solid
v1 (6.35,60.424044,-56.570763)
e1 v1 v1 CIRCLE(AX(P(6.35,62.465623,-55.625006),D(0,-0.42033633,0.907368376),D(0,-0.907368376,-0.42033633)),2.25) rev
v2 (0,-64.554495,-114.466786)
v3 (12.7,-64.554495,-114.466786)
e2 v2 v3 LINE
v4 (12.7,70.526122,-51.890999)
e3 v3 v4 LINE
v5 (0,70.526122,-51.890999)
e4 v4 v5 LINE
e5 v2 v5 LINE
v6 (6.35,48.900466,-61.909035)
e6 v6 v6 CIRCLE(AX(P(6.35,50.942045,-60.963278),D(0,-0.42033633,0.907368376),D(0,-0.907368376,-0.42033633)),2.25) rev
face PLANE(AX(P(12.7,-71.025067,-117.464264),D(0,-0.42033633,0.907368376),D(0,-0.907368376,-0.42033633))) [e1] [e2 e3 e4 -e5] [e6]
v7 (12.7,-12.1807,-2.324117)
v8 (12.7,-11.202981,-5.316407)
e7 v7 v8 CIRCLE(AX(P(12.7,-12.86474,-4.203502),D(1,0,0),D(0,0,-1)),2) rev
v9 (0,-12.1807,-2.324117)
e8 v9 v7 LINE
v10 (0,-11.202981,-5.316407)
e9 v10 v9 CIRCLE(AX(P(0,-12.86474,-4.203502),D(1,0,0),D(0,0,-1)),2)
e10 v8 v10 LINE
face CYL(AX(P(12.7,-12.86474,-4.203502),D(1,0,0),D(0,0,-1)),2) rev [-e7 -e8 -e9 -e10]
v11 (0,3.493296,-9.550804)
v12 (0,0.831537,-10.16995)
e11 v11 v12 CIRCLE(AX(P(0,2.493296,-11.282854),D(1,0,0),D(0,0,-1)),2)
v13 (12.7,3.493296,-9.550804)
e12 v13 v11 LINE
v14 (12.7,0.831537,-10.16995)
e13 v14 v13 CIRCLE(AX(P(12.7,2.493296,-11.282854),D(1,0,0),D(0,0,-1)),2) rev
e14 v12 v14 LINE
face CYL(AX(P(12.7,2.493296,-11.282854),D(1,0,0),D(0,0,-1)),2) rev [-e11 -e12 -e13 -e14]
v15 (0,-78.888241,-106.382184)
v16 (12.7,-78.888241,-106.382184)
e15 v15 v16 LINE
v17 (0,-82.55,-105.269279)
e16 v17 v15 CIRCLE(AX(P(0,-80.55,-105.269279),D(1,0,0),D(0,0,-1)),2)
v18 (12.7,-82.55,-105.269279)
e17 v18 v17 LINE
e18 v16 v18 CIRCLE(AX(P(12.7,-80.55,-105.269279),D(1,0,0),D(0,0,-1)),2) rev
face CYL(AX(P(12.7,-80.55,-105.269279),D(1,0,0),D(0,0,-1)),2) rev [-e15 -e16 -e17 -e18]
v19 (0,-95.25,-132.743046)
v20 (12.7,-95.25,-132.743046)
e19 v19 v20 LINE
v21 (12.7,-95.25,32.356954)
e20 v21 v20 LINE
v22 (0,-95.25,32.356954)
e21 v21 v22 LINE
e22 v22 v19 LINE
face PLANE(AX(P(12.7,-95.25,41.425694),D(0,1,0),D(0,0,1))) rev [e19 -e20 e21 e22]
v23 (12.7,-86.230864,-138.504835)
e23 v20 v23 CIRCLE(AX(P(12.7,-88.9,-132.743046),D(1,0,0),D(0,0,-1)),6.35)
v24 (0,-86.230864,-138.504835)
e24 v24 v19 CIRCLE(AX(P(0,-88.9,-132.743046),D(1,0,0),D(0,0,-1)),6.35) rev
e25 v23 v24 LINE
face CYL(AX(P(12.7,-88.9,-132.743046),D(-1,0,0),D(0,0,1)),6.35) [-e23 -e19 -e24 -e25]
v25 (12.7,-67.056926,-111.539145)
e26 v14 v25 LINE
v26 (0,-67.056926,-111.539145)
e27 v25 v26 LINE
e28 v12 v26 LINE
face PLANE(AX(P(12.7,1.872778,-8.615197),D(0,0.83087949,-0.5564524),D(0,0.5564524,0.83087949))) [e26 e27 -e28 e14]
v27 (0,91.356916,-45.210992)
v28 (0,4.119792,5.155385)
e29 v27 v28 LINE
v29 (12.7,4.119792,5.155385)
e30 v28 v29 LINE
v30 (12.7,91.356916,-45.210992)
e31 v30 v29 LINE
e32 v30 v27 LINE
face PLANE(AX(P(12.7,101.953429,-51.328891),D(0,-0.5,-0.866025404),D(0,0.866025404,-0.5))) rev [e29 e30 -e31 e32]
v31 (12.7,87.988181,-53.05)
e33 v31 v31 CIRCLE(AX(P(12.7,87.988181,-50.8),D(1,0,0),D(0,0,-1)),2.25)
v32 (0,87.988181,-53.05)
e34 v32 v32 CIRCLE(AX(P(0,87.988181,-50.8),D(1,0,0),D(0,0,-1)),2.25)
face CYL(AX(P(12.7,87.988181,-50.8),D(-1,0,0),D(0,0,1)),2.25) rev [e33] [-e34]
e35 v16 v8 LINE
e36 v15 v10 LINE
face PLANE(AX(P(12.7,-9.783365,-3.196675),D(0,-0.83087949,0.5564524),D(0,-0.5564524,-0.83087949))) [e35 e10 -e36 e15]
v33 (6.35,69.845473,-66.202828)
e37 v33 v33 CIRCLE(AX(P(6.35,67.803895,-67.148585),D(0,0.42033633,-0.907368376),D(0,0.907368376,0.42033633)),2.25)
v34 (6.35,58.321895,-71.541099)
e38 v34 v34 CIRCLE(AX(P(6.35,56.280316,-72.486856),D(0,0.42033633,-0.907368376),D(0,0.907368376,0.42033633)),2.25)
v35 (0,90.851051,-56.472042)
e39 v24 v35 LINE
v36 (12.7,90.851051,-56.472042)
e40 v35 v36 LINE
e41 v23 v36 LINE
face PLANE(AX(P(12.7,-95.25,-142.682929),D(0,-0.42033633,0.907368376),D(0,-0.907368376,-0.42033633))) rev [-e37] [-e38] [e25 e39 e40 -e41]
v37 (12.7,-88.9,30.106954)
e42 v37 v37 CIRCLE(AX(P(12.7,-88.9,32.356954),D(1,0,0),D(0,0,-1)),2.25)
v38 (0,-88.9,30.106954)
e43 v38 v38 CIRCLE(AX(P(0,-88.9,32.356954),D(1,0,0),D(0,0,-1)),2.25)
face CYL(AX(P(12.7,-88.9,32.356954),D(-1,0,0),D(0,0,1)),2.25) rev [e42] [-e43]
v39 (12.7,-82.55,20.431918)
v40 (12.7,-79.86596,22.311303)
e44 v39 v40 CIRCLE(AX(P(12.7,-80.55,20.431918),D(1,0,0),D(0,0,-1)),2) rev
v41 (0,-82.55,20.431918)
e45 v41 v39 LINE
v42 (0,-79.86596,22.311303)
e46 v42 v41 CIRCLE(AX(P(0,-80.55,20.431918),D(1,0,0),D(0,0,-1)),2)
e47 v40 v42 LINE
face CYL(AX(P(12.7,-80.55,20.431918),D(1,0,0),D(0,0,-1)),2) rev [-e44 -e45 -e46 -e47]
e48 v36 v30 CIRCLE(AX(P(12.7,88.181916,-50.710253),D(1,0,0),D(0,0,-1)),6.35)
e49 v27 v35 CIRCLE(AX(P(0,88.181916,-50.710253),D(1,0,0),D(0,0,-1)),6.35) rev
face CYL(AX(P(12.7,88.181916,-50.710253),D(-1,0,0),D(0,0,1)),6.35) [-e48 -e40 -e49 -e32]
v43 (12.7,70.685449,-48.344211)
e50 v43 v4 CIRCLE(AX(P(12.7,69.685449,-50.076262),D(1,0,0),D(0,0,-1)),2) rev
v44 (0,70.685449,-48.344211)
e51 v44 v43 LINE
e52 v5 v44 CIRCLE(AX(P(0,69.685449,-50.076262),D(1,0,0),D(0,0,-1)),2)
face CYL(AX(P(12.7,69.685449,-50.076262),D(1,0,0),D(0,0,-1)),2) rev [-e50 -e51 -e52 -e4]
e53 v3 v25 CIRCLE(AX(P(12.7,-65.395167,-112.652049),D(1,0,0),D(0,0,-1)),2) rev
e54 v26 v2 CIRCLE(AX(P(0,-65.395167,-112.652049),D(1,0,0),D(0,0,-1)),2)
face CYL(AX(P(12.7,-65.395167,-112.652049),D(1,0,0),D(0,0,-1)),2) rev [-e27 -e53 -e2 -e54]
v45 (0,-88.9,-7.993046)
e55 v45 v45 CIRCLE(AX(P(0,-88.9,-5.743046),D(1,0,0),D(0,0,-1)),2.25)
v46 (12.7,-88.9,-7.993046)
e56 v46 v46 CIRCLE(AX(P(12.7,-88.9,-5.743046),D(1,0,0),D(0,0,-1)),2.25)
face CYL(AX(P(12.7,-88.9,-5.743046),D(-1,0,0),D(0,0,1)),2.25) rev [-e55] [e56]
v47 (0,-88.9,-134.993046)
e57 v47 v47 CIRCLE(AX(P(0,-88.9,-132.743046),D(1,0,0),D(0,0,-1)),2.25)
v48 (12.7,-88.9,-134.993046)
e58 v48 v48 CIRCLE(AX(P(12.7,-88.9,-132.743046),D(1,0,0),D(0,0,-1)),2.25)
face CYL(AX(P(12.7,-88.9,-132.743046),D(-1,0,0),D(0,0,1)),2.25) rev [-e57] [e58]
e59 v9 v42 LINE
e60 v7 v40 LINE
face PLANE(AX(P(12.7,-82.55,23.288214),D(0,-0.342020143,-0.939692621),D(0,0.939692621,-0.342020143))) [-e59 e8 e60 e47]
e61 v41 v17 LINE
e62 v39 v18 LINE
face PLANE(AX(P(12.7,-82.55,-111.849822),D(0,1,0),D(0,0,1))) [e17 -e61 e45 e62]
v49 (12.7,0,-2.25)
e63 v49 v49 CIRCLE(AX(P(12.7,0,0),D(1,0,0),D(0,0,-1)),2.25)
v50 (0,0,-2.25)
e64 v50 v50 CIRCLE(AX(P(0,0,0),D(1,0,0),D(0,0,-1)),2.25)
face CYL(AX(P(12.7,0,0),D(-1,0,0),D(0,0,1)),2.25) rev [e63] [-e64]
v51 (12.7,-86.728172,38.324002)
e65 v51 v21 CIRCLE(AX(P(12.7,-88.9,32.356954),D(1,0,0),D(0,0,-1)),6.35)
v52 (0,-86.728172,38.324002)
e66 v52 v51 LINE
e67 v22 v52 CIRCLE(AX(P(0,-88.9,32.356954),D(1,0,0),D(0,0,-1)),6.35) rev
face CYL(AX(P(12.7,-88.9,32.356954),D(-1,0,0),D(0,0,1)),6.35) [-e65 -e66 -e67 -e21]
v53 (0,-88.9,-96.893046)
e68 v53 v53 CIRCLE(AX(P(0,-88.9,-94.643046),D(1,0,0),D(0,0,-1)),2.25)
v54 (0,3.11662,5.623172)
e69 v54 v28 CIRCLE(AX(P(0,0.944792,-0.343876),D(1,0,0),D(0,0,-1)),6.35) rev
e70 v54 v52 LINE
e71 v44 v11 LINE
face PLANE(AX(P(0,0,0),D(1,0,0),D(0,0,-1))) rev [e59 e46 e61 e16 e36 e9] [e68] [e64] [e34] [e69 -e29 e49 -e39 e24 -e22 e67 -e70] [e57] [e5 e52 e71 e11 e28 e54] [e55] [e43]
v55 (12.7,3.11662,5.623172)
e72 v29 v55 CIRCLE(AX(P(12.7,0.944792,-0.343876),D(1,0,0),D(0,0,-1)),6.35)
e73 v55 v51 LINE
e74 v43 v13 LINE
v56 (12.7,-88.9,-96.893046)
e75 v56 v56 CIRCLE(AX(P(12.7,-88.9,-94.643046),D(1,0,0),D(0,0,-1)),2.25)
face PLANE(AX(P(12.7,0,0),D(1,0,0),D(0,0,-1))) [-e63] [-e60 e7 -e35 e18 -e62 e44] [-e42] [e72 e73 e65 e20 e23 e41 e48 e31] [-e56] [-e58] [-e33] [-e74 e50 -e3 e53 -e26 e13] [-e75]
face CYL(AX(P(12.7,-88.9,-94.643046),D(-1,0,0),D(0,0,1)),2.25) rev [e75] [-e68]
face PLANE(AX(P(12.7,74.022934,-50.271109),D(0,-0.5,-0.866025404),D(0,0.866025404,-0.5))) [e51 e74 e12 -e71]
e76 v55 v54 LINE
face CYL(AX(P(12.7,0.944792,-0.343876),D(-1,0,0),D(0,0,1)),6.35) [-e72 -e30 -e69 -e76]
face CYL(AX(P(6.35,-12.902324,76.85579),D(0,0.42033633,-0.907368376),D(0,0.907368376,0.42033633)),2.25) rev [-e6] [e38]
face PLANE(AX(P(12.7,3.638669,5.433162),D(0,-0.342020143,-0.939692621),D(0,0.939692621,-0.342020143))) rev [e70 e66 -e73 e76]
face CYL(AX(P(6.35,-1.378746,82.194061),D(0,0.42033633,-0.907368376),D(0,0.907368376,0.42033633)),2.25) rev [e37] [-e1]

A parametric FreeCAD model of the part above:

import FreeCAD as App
import Part
import Sketcher
Q = App.Units.Quantity


def edges_at(feature, points):
    """Names of the edges that pass closest to the given points."""
    edges = feature.Shape.Edges
    near = lambda p: min(range(len(edges)), key=lambda i: edges[i].distToShape(Part.Vertex(*p))[0])
    return sorted({f"Edge{near(p) + 1}" for p in points})

doc = App.newDocument("Part")
body = doc.addObject("PartDesign::Body", "Body")

# Sketch on YZ plane
sketch1 = doc.addObject("Sketcher::SketchObject", "Sketch")
body.addObject(sketch1)
sketch1.AttachmentSupport = (doc.YZ_Plane, [""])
sketch1.MapMode = "FlatFace"
sketch1.addGeometry([
    Part.LineSegment(App.Vector(-95.2, 41.4, 0), App.Vector(-95.2, -142.7, 0)),  # 0
    Part.LineSegment(App.Vector(-95.2, -142.7, 0), App.Vector(102, -51.3, 0)),  # 1
    Part.LineSegment(App.Vector(102, -51.3, 0), App.Vector(3.6, 5.4, 0)),  # 2
    Part.LineSegment(App.Vector(3.6, 5.4, 0), App.Vector(-95.2, 41.4, 0)),  # 3
    Part.Circle(App.Vector(-88.9, 32.4, 0), App.Vector(0, 0, 1), 2.2),  # 4
    Part.Circle(App.Vector(-88.9, -5.7, 0), App.Vector(0, 0, 1), 2.2),  # 5
    Part.LineSegment(App.Vector(-82.5, -111.8, 0), App.Vector(-82.5, 23.3, 0)),  # 6
    Part.LineSegment(App.Vector(-82.5, 23.3, 0), App.Vector(-9.8, -3.2, 0)),  # 7
    Part.LineSegment(App.Vector(-9.8, -3.2, 0), App.Vector(-82.5, -111.8, 0)),  # 8
    Part.Circle(App.Vector(-88.9, -94.6, 0), App.Vector(0, 0, 1), 2.2),  # 9
    Part.Circle(App.Vector(-88.9, -132.7, 0), App.Vector(0, 0, 1), 2.2),  # 10
    Part.Circle(App.Vector(0, 0, 0), App.Vector(0, 0, 1), 2.2),  # 11
    Part.LineSegment(App.Vector(-71, -117.5, 0), App.Vector(1.9, -8.6, 0)),  # 12
    Part.LineSegment(App.Vector(1.9, -8.6, 0), App.Vector(74, -50.3, 0)),  # 13
    Part.LineSegment(App.Vector(74, -50.3, 0), App.Vector(-71, -117.5, 0)),  # 14
    Part.Circle(App.Vector(88, -50.8, 0), App.Vector(0, 0, 1), 2.2),  # 15
], False)
sketch1.addConstraint([
    Sketcher.Constraint("Coincident", 0, 2, 1, 1),
    Sketcher.Constraint("Coincident", 1, 2, 2, 1),
    Sketcher.Constraint("Coincident", 2, 2, 3, 1),
    Sketcher.Constraint("Coincident", 3, 2, 0, 1),
    Sketcher.Constraint("Coincident", 6, 2, 7, 1),
    Sketcher.Constraint("Coincident", 7, 2, 8, 1),
    Sketcher.Constraint("Coincident", 8, 2, 6, 1),
    Sketcher.Constraint("Coincident", 12, 2, 13, 1),
    Sketcher.Constraint("Coincident", 13, 2, 14, 1),
    Sketcher.Constraint("Coincident", 14, 2, 12, 1),
    Sketcher.Constraint("Vertical", 0),
    Sketcher.Constraint("Vertical", 6),
    Sketcher.Constraint("Coincident", 11, 3, -1, 1),
    Sketcher.Constraint("Equal", 4, 5),
    Sketcher.Constraint("Equal", 5, 9),
    Sketcher.Constraint("Equal", 9, 10),
    Sketcher.Constraint("Equal", 10, 11),
    Sketcher.Constraint("Equal", 11, 15),
    Sketcher.Constraint("Parallel", 3, 7),
    Sketcher.Constraint("Parallel", 8, 12),
    Sketcher.Constraint("Parallel", 2, 13),
    Sketcher.Constraint("Parallel", 1, 14),
    Sketcher.Constraint("Vertical", 4, 3, 5, 3),
    Sketcher.Constraint("Vertical", 5, 3, 9, 3),
    Sketcher.Constraint("Vertical", 9, 3, 10, 3),
    Sketcher.Constraint("Diameter", 4, 4.5),
    Sketcher.Constraint("Angle", 2, Q("150 deg")),
    Sketcher.Constraint("Angle", 3, Q("160 deg")),
    Sketcher.Constraint("DistanceY", 9, 3, 4, 3, 127.0),
    Sketcher.Constraint("DistanceY", 10, 3, 5, 3, 127.0),
    Sketcher.Constraint("DistanceX", 4, 3, -1, 1, 88.9),
    Sketcher.Constraint("DistanceY", 15, 3, -1, 1, 50.8),
    Sketcher.Constraint("DistanceY", 5, 3, 4, 3, 38.1),
    Sketcher.Constraint("DistanceX", 3, 2, 6, 2, 12.7),
    Sketcher.Constraint("DistanceX", 0, 2, -1, 1, 95.25),
    Sketcher.Constraint("Distance", 8, 130.76884),
    Sketcher.Constraint("Distance", 12, 131.004638),
    Sketcher.Constraint("DistanceY", 0, 2, 0, 1, 184.108623),
    Sketcher.Constraint("DistanceY", 6, 1, 6, 2, 135.138036),
    Sketcher.Constraint("DistanceX", -1, 1, 15, 3, 87.988181),
    Sketcher.Constraint("DistanceY", 0, 2, -1, 1, 142.682929),
    Sketcher.Constraint("DistanceX", -1, 1, 1, 2, 101.953429),
    Sketcher.Constraint("DistanceY", 1, 2, -1, 1, 51.328891),
    Sketcher.Constraint("DistanceY", 8, 2, -1, 1, 111.849822),
    Sketcher.Constraint("DistanceX", -1, 1, 12, 2, 1.872778),
    Sketcher.Constraint("DistanceY", 13, 2, -1, 1, 50.271109),
    Sketcher.Constraint("DistanceY", 4, 3, 3, 2, 9.06874),
])
pad1 = doc.addObject("PartDesign::Pad", "Pad")
body.addObject(pad1)
pad1.Profile = sketch1
pad1.Length = 12.7
doc.recompute()

fillet = doc.addObject("PartDesign::Fillet", "Fillet")
body.addObject(fillet)
fillet.Base = (pad1, edges_at(pad1, [
    (6.35, 3.639, 5.433),
    (6.35, 101.953, -51.329),
    (6.35, -95.25, -142.683),
    (6.35, -95.25, 41.426),
]))
fillet.Radius = 6.35
doc.recompute()

fillet2 = doc.addObject("PartDesign::Fillet", "Fillet001")
body.addObject(fillet2)
fillet2.Base = (fillet, edges_at(fillet, [
    (6.35, -82.55, 23.288),
    (6.35, -82.55, -111.85),
    (6.35, -9.783, -3.197),
    (6.35, 74.023, -50.271),
    (6.35, 1.873, -8.615),
    (6.35, -71.025, -117.464),
]))
fillet2.Radius = 2

# Sketch on an angled plane
sketch2 = doc.addObject("Sketcher::SketchObject", "Sketch001")
body.addObject(sketch2)
sketch2.Placement = App.Placement(App.Vector(0, 37.590233, -81.144994), App.Rotation(App.Vector(-1, 0, 0), App.Vector(0, 0.907368376, 0.42033633), App.Vector(0, 0.42033633, -0.907368376), "ZXY"))
sketch2.addGeometry(Part.Circle(App.Vector(-6.3, 33.3, 0), App.Vector(0, 0, 1), 2.2), False)
sketch2.addConstraint([
    Sketcher.Constraint("Diameter", 0, 4.5),
    Sketcher.Constraint("DistanceX", 0, 3, -1, 1, 6.35),
    Sketcher.Constraint("DistanceY", -1, 1, 0, 3, 33.29812),
])
pocket1 = doc.addObject("PartDesign::Pocket", "Pocket")
body.addObject(pocket1)
pocket1.Profile = sketch2
pocket1.Type = "UpToFirst"

# Sketch on an angled plane
sketch3 = doc.addObject("Sketcher::SketchObject", "Sketch002")
body.addObject(sketch3)
sketch3.Placement = App.Placement(App.Vector(0, 37.590233, -81.144994), App.Rotation(App.Vector(-1, 0, 0), App.Vector(0, 0.907368376, 0.42033633), App.Vector(0, 0.42033633, -0.907368376), "ZXY"))
sketch3.addGeometry(Part.Circle(App.Vector(-6.3, 20.6, 0), App.Vector(0, 0, 1), 2.2), False)
sketch3.addConstraint([
    Sketcher.Constraint("Diameter", 0, 4.5),
    Sketcher.Constraint("DistanceX", 0, 3, -1, 1, 6.35),
    Sketcher.Constraint("DistanceY", -1, 1, 0, 3, 20.59812),
])
pocket2 = doc.addObject("PartDesign::Pocket", "Pocket001")
body.addObject(pocket2)
pocket2.Profile = sketch3
pocket2.Type = "UpToFirst"

doc.recompute()
